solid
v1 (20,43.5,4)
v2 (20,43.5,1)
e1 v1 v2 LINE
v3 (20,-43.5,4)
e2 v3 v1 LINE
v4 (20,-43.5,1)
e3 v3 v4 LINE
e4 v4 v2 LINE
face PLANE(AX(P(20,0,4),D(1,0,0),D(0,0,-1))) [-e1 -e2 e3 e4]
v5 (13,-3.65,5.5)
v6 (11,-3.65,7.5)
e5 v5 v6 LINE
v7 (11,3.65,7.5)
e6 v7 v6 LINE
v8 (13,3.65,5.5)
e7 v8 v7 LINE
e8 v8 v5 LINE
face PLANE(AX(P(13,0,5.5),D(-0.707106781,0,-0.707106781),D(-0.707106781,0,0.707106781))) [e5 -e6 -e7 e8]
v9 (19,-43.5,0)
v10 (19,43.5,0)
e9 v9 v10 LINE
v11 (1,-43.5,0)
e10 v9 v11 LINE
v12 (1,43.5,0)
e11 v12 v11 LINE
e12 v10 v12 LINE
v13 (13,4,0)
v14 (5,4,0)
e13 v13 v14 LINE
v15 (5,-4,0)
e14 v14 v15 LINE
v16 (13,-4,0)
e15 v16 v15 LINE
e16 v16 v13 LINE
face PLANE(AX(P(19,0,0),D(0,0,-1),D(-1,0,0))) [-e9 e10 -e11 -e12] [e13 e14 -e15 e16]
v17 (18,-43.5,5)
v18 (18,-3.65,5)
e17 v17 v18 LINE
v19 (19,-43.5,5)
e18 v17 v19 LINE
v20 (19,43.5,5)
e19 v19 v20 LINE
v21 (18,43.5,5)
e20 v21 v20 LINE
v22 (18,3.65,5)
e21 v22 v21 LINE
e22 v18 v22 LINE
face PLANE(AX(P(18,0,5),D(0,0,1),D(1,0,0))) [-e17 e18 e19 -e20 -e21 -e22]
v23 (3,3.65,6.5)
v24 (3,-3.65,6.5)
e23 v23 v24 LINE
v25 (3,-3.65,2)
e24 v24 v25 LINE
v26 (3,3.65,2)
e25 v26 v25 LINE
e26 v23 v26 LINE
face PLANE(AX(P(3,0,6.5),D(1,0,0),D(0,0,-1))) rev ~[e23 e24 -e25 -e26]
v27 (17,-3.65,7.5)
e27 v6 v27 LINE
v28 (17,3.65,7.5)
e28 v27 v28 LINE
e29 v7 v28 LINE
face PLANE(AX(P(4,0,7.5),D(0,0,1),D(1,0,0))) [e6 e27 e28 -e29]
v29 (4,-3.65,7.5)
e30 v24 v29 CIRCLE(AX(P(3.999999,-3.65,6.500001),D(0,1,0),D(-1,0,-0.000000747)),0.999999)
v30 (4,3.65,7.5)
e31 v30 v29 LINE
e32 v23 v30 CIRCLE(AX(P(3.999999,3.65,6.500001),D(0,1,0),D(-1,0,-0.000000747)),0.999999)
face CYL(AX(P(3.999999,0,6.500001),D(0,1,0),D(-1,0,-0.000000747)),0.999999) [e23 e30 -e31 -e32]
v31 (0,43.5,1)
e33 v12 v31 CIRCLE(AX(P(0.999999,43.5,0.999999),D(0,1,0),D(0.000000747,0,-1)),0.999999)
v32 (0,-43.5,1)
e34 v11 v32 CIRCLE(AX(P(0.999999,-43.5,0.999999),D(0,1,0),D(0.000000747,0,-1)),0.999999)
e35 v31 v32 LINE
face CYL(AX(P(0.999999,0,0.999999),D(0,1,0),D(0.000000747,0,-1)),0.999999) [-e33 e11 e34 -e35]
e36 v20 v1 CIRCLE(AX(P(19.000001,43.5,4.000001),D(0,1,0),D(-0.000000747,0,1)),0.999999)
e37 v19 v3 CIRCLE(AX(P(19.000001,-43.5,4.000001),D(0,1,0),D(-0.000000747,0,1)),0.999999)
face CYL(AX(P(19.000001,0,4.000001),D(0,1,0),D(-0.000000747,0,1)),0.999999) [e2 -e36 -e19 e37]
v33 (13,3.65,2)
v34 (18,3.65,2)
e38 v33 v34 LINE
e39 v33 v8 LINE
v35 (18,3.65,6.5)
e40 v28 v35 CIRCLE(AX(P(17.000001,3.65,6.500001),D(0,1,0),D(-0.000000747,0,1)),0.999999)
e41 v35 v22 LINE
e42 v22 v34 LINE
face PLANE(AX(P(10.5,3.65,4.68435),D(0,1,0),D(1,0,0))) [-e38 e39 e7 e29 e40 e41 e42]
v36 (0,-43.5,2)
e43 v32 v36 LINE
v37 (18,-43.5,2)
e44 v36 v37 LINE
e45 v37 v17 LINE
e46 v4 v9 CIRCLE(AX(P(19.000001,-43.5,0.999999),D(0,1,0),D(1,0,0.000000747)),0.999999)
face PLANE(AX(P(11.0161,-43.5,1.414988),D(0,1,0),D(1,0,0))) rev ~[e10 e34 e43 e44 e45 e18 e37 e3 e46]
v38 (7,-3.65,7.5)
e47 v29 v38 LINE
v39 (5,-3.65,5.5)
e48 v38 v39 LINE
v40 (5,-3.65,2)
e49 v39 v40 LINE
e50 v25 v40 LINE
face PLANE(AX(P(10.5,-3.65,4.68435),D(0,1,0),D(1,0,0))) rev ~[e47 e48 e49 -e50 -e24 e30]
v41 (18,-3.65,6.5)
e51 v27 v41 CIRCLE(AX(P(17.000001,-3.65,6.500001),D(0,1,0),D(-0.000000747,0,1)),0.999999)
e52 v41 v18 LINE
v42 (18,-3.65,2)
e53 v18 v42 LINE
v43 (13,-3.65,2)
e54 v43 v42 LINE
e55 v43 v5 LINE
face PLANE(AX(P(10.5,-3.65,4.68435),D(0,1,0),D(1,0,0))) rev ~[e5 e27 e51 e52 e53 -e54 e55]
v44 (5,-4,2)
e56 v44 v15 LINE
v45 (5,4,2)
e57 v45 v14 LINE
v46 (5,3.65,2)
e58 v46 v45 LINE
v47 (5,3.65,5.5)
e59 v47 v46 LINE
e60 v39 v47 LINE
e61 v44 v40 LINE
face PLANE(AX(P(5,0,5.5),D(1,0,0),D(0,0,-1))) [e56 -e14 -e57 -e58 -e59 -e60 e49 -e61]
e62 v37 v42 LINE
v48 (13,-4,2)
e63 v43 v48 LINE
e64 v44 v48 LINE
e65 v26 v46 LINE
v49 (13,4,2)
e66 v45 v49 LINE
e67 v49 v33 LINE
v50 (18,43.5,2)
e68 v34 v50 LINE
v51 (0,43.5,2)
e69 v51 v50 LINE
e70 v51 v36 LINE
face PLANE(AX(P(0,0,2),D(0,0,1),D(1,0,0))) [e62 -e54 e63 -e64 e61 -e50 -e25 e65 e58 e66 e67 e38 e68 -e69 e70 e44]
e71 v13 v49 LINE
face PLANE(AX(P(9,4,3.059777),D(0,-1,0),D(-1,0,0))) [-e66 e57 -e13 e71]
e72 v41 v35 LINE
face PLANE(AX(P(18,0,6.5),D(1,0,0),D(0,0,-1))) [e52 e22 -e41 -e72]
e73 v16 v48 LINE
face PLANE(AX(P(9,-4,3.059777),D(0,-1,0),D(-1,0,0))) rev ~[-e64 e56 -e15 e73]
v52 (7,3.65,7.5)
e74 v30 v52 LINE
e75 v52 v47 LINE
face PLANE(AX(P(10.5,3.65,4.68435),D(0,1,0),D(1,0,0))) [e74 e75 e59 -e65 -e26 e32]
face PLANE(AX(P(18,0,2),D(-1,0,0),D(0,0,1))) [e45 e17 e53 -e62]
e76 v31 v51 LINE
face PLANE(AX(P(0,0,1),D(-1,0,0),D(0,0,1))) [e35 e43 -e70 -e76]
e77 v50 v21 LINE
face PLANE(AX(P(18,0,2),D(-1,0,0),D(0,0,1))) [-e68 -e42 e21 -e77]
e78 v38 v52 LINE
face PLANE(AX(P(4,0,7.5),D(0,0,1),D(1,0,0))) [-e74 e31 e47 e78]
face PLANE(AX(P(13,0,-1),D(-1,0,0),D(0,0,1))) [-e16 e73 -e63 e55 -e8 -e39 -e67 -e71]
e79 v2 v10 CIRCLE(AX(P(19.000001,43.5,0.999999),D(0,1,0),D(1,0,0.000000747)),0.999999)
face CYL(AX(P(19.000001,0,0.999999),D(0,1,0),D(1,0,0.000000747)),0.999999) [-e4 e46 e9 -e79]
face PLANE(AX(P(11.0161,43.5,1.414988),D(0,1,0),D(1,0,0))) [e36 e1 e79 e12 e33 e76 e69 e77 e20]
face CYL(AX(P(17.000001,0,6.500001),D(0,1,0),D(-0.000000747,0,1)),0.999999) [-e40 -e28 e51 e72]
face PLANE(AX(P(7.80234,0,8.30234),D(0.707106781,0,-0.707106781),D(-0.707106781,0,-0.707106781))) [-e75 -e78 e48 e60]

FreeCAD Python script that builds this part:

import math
import FreeCAD as App
import Part
import Sketcher


def add_polygon(sketch, points):
    """Adds a closed chain of lines whose ends are joined by coincident constraints."""
    first, n = sketch.GeometryCount, len(points)
    for a, b in zip(points, points[1:] + points[:1]):
        sketch.addGeometry(Part.LineSegment(App.Vector(*a, 0), App.Vector(*b, 0)), False)
    for i in range(n):
        sketch.addConstraint(Sketcher.Constraint("Coincident", first + i, 2, first + (i + 1) % n, 1))

doc = App.newDocument("Part")
body = doc.addObject("PartDesign::Body", "Body")

sketch1 = body.newObject("Sketcher::SketchObject", "Sketch")
sketch1.AttachmentSupport = (doc.getObject("XZ_Plane"), [""])
sketch1.MapMode = "FlatFace"
add_polygon(sketch1, [(13, 3), (5, 3), (5, -3.5), (7.8, -6.3), (10.2, -6.3), (13, -3.5)])
sketch1.addConstraint([
    Sketcher.Constraint("Horizontal", 0),
    Sketcher.Constraint("Vertical", 1),
    Sketcher.Constraint("Horizontal", 3),
    Sketcher.Constraint("Vertical", 5),
    Sketcher.Constraint("Perpendicular", 2, 4),
    Sketcher.Constraint("Horizontal", 1, 2, 4, 2),
    Sketcher.Constraint("Equal", 2, 4),
    Sketcher.Constraint("DistanceX", 0, 2, 0, 1, 8.0),
    Sketcher.Constraint("DistanceY", 1, 2, 1, 1, 6.5),
    Sketcher.Constraint("DistanceX", -1, 1, 0, 2, 5.0),
    Sketcher.Constraint("DistanceY", -1, 1, 0, 2, 3.0),
    Sketcher.Constraint("DistanceX", 3, 1, 3, 2, 2.39532),
])
pad1 = body.newObject("PartDesign::Pad", "Pad")
pad1.Profile = sketch1
pad1.Length = 8
pad1.Midplane = True
body2 = doc.addObject("PartDesign::Body", "Body001")

sketch2 = body2.newObject("Sketcher::SketchObject", "Sketch001")
sketch2.AttachmentSupport = (doc.getObject("XZ_Plane001"), [""])
sketch2.MapMode = "FlatFace"
sketch2.addGeometry([
    Part.LineSegment(App.Vector(4, -5.5, 0), App.Vector(17, -5.5, 0)),
    Part.ArcOfCircle(Part.Circle(App.Vector(17, -4.5, 0), App.Vector(0, 0, 1), 1), math.radians(-90), math.radians(0)),
    Part.LineSegment(App.Vector(18, -4.5, 0), App.Vector(18, 0, 0)),
    Part.LineSegment(App.Vector(18, 0, 0), App.Vector(3, 0, 0)),
    Part.LineSegment(App.Vector(3, 0, 0), App.Vector(3, -4.5, 0)),
    Part.ArcOfCircle(Part.Circle(App.Vector(4, -4.5, 0), App.Vector(0, 0, 1), 1), math.radians(180), math.radians(270)),
], False)
sketch2.addConstraint([
    Sketcher.Constraint("Tangent", 0, 2, 1, 1),
    Sketcher.Constraint("Tangent", 1, 2, 2, 1),
    Sketcher.Constraint("Coincident", 2, 2, 3, 1),
    Sketcher.Constraint("Coincident", 3, 2, 4, 1),
    Sketcher.Constraint("Tangent", 4, 2, 5, 1),
    Sketcher.Constraint("Tangent", 5, 2, 0, 1),
    Sketcher.Constraint("Horizontal", 0),
    Sketcher.Constraint("Vertical", 2),
    Sketcher.Constraint("Horizontal", 3),
    Sketcher.Constraint("Vertical", 4),
    Sketcher.Constraint("Equal", 1, 5),
    Sketcher.Constraint("PointOnObject", 2, 2, -1),
    Sketcher.Constraint("Radius", 1, 0.999999),
    Sketcher.Constraint("DistanceX", 0, 1, 0, 2, 13.0),
    Sketcher.Constraint("DistanceY", 2, 1, 2, 2, 4.5),
    Sketcher.Constraint("DistanceX", -1, 1, 1, 3, 17.000001),
])
pad2 = body2.newObject("PartDesign::Pad", "Pad001")
pad2.Profile = sketch2
pad2.Length = 7.3
pad2.Midplane = True
body3 = doc.addObject("PartDesign::Body", "Body002")

sketch3 = body3.newObject("Sketcher::SketchObject", "Sketch002")
sketch3.AttachmentSupport = (doc.getObject("XZ_Plane002"), [""])
sketch3.MapMode = "FlatFace"
sketch3.addGeometry([
    Part.LineSegment(App.Vector(0, 0, 0), App.Vector(18, 0, 0)),
    Part.LineSegment(App.Vector(18, 0, 0), App.Vector(18, -3, 0)),
    Part.LineSegment(App.Vector(18, -3, 0), App.Vector(19, -3, 0)),
    Part.ArcOfCircle(Part.Circle(App.Vector(19, -2, 0), App.Vector(0, 0, 1), 1), math.radians(-90), math.radians(0)),
    Part.LineSegment(App.Vector(20, -2, 0), App.Vector(20, 1, 0)),
    Part.ArcOfCircle(Part.Circle(App.Vector(19, 1, 0), App.Vector(0, 0, 1), 1), math.radians(0), math.radians(90)),
    Part.LineSegment(App.Vector(19, 2, 0), App.Vector(1, 2, 0)),
    Part.ArcOfCircle(Part.Circle(App.Vector(1, 1, 0), App.Vector(0, 0, 1), 1), math.radians(90), math.radians(180)),
    Part.LineSegment(App.Vector(0, 1, 0), App.Vector(0, 0, 0)),
], False)
sketch3.addConstraint([
    Sketcher.Constraint("Coincident", 0, 2, 1, 1),
    Sketcher.Constraint("Coincident", 1, 2, 2, 1),
    Sketcher.Constraint("Tangent", 2, 2, 3, 1),
    Sketcher.Constraint("Tangent", 3, 2, 4, 1),
    Sketcher.Constraint("Tangent", 4, 2, 5, 1),
    Sketcher.Constraint("Tangent", 5, 2, 6, 1),
    Sketcher.Constraint("Tangent", 6, 2, 7, 1),
    Sketcher.Constraint("Tangent", 7, 2, 8, 1),
    Sketcher.Constraint("Coincident", 8, 2, 0, 1),
    Sketcher.Constraint("Horizontal", 0),
    Sketcher.Constraint("Vertical", 1),
    Sketcher.Constraint("Horizontal", 2),
    Sketcher.Constraint("Vertical", 4),
    Sketcher.Constraint("Horizontal", 6),
    Sketcher.Constraint("Vertical", 8),
    Sketcher.Constraint("Coincident", 8, 2, -1, 1),
    Sketcher.Constraint("Equal", 3, 5),
    Sketcher.Constraint("Equal", 5, 7),
    Sketcher.Constraint("Equal", 0, 6),
    Sketcher.Constraint("Equal", 1, 4),
    Sketcher.Constraint("Radius", 3, 0.999999),
    Sketcher.Constraint("DistanceX", 0, 1, 0, 2, 18.0),
    Sketcher.Constraint("DistanceY", 1, 2, 1, 1, 3.0),
])
pad3 = body3.newObject("PartDesign::Pad", "Pad002")
pad3.Profile = sketch3
pad3.Length = 87
pad3.Midplane = True
doc.recompute()

boolean = body3.newObject("PartDesign::Boolean", "Boolean")
boolean.Type = "Fuse"
boolean.addObjects([body2])
doc.recompute()

boolean2 = body3.newObject("PartDesign::Boolean", "Boolean001")
boolean2.Type = "Cut"
boolean2.addObjects([body])
body4 = doc.addObject("PartDesign::Body", "Body003")
doc.recompute()

body3.Placement = App.Placement(App.Vector(0, 0, 2), App.Rotation(App.Vector(1, 0, 0), 180))
boolean3 = body4.newObject("PartDesign::Boolean", "Boolean002")
boolean3.Type = "Fuse"
boolean3.addObjects([body3])

doc.recompute()
